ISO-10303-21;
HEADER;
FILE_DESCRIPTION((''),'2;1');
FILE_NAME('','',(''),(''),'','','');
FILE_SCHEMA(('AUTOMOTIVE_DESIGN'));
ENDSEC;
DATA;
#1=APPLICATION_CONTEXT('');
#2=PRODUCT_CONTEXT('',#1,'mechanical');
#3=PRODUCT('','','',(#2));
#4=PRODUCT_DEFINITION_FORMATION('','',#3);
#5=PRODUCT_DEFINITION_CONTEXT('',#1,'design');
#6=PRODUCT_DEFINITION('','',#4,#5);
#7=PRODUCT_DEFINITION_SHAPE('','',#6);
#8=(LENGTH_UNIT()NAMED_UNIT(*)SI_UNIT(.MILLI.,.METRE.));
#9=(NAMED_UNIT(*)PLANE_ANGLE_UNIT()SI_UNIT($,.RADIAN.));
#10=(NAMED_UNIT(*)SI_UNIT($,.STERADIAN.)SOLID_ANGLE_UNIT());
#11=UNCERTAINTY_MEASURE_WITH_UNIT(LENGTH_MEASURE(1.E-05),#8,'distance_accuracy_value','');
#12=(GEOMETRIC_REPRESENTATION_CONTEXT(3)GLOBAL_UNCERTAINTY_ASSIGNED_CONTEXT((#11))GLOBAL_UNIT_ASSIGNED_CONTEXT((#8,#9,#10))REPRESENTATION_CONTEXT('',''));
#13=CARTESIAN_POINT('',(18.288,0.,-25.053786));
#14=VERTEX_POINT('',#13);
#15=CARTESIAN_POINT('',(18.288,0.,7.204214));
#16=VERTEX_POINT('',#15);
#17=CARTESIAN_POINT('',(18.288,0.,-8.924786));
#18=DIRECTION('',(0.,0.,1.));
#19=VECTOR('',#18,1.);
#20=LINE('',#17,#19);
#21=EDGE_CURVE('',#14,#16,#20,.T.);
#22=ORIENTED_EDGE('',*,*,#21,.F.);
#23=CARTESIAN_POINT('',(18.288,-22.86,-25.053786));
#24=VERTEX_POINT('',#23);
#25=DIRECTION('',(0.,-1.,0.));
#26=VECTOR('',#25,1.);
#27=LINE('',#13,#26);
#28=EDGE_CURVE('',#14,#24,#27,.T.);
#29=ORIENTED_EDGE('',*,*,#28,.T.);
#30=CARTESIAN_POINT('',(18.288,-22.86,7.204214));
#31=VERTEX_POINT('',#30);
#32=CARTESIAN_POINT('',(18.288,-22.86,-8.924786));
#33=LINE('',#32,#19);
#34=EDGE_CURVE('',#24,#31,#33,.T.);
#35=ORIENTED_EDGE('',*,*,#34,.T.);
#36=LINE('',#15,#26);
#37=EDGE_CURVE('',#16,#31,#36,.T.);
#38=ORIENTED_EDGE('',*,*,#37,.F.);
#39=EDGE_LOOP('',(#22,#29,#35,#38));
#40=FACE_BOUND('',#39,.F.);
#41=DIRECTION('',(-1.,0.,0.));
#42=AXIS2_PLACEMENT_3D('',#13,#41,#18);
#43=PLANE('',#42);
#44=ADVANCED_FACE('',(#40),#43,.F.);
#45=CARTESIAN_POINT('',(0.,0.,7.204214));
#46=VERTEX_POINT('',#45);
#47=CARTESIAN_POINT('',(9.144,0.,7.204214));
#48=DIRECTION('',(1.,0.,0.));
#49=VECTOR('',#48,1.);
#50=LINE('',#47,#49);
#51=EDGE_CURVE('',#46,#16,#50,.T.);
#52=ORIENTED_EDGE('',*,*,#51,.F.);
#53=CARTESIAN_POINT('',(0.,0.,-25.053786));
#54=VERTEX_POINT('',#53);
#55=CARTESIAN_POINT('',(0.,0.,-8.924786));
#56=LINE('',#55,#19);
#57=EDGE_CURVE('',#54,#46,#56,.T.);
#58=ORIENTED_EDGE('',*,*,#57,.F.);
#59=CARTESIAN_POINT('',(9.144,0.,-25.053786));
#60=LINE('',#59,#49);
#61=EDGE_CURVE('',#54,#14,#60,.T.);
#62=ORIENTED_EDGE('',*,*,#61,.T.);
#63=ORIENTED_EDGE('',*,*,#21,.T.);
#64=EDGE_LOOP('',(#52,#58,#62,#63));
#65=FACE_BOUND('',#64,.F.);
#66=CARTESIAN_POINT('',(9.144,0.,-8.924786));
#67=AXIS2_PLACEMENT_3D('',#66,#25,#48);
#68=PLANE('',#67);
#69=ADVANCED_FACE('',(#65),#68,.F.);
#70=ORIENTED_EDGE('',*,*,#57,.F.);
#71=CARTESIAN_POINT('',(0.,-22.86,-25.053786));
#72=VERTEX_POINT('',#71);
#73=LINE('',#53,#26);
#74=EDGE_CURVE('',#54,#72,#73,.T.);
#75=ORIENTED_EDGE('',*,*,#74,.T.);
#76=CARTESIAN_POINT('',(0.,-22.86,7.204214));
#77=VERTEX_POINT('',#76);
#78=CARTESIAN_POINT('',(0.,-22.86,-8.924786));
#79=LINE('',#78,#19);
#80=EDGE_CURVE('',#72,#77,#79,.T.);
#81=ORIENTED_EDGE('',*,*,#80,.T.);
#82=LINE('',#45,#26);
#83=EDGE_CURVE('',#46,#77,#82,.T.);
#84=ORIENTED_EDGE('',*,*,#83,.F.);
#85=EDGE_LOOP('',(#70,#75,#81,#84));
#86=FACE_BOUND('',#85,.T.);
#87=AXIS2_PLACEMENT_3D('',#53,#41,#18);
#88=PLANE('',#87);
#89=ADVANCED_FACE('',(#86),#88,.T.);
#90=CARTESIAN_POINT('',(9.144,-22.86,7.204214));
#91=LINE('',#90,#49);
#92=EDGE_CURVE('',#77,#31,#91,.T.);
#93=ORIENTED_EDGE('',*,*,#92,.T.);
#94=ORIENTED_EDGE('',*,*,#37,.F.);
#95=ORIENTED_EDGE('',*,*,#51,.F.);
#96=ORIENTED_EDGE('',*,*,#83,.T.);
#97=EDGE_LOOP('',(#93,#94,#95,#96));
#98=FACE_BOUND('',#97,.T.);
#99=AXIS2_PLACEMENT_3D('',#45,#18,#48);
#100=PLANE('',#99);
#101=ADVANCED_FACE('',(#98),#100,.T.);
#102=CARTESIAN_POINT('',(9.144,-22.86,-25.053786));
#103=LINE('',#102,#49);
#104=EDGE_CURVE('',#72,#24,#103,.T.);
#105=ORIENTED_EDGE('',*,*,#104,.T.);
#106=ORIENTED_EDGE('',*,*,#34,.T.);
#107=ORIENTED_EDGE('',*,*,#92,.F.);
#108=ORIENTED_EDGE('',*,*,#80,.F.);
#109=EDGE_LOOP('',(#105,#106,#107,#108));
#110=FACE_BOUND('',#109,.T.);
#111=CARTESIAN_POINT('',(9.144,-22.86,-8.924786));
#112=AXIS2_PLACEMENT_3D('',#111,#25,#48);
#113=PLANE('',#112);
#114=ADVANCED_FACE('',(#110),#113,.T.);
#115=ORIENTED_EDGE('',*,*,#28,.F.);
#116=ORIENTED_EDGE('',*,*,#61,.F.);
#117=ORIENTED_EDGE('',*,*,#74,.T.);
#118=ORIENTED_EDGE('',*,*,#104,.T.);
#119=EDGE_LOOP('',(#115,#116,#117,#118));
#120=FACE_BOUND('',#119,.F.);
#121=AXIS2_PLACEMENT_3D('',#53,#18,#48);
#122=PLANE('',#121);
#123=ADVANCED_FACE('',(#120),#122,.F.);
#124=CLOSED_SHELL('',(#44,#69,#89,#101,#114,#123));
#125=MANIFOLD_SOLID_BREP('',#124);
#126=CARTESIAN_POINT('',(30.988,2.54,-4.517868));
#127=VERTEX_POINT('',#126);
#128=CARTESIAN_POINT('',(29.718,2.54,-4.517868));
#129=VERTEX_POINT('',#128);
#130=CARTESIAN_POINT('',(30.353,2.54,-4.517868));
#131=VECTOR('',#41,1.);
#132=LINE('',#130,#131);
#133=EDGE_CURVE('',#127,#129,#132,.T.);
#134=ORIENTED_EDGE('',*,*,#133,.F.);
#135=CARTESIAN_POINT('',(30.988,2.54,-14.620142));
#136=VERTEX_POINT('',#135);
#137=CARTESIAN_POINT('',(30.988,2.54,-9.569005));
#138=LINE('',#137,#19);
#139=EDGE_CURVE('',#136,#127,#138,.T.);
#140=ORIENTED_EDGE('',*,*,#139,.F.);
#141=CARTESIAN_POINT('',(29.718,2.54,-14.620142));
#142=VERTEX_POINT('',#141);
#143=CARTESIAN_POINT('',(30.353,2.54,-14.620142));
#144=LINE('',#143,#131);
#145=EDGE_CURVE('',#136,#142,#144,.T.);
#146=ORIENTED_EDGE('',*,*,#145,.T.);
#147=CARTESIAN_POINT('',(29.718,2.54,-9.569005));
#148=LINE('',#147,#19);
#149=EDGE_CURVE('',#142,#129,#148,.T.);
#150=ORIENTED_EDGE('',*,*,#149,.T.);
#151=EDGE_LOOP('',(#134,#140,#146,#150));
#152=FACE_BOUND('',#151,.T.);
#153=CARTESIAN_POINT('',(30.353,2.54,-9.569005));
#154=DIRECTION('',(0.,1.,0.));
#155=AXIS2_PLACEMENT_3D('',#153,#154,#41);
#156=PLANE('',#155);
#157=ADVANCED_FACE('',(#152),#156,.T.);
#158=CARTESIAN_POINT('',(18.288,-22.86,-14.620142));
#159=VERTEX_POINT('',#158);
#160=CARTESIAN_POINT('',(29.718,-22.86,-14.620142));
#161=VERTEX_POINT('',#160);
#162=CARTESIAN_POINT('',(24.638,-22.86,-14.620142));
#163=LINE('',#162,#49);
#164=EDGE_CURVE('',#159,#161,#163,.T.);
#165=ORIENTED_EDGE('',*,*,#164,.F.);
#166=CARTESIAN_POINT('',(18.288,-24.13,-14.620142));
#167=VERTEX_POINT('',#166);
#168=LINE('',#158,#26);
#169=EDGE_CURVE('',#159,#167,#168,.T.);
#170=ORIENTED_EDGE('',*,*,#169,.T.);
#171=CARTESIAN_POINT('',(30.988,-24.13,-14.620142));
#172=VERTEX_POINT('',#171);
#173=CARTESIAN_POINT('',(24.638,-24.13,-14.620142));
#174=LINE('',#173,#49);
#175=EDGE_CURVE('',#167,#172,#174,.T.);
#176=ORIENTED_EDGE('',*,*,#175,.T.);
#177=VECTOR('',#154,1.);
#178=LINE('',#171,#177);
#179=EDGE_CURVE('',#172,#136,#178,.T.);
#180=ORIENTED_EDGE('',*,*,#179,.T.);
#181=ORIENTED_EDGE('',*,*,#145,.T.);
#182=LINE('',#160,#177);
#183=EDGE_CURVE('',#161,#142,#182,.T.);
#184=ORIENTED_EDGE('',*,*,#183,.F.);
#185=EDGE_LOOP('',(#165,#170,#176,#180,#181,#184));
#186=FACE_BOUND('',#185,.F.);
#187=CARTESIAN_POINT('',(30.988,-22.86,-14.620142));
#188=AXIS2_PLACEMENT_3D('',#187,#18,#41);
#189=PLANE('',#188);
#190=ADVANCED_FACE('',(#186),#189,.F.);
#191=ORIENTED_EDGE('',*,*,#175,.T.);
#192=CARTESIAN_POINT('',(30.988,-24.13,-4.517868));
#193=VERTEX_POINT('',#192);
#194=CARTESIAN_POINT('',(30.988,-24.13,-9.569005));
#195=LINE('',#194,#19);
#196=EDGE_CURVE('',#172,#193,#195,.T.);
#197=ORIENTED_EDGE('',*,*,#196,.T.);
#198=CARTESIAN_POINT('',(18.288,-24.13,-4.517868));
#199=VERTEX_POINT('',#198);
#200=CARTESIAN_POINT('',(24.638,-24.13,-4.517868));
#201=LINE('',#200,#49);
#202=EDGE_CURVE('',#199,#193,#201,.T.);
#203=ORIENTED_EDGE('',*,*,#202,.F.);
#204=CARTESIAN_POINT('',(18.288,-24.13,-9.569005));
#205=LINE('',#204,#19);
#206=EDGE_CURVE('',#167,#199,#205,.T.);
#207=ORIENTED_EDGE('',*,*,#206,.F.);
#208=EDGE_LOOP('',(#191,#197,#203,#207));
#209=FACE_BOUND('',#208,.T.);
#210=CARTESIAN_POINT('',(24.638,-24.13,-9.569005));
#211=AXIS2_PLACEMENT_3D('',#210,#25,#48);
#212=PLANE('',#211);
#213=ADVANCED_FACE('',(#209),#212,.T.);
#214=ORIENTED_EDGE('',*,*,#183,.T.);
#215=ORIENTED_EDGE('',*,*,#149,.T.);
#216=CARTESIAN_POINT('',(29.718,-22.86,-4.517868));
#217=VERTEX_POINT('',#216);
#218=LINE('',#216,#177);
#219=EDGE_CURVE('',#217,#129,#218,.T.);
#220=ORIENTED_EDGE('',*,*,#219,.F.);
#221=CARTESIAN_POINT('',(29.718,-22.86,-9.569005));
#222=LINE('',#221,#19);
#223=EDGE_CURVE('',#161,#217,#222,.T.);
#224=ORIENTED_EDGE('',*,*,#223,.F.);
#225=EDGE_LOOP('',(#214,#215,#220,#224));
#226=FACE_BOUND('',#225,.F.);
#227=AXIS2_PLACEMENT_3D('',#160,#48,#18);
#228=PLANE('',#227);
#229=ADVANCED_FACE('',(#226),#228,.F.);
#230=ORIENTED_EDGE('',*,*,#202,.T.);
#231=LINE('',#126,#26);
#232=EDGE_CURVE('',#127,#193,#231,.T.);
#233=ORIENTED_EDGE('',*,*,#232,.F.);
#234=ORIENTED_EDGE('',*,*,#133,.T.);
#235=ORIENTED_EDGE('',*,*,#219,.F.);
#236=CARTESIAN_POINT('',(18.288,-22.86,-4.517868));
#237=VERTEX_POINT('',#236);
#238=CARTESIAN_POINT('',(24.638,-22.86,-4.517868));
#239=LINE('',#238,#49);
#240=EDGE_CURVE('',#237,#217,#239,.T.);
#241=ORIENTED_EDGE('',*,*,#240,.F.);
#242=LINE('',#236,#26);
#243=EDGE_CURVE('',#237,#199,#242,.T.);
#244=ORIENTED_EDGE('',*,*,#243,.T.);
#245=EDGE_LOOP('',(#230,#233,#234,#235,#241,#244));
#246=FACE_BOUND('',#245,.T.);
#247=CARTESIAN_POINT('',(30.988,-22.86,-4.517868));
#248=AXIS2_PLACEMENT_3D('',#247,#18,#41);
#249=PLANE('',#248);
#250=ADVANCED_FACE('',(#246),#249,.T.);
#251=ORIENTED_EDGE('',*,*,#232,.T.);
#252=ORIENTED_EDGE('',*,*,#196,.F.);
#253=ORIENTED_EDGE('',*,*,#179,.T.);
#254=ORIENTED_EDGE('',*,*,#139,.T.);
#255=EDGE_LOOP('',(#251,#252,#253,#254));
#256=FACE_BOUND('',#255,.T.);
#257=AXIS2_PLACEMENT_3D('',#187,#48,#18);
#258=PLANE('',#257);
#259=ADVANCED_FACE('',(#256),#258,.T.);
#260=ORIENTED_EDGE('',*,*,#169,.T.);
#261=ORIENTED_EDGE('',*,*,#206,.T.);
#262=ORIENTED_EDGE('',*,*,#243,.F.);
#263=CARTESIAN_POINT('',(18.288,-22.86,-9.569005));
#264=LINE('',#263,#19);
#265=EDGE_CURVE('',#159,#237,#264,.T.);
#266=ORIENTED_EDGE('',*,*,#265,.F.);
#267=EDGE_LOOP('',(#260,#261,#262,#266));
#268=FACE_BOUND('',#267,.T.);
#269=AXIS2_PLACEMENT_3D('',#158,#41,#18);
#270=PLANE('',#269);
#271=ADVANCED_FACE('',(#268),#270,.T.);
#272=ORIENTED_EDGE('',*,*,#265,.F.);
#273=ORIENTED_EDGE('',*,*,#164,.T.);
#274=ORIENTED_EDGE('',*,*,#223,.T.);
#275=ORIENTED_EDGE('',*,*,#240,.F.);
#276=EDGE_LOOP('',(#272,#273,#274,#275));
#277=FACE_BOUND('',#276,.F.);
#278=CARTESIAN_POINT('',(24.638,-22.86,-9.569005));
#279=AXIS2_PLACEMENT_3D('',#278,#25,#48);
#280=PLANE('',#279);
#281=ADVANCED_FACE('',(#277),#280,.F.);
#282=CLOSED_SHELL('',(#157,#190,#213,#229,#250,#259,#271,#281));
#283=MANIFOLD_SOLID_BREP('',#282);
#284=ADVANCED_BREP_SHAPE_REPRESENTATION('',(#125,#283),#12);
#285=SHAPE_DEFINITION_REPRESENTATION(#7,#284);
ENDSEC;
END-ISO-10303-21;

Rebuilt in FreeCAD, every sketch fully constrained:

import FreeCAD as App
import Part
import Sketcher
from FreeCAD import Vector
Q = App.Units.Quantity


def add_polygon(sketch, points):
    """Adds a closed chain of lines whose ends are joined by coincident constraints."""
    first, n = sketch.GeometryCount, len(points)
    for a, b in zip(points, points[1:] + points[:1]):
        sketch.addGeometry(Part.LineSegment(App.Vector(*a, 0), App.Vector(*b, 0)), False)
    for i in range(n):
        sketch.addConstraint(Sketcher.Constraint("Coincident", first + i, 2, first + (i + 1) % n, 1))

doc = App.newDocument("Part")
body = doc.addObject("PartDesign::Body", "Body")

sketch1 = body.newObject("Sketcher::SketchObject", "Sketch")
sketch1.AttachmentSupport = (doc.getObject("XZ_Plane"), [""])
sketch1.MapMode = "FlatFace"
add_polygon(sketch1, [(0, 7), (0, -25), (18, -25), (18, 7)])
sketch1.addConstraint([
    Sketcher.Constraint("Vertical", 0),
    Sketcher.Constraint("Horizontal", 1),
    Sketcher.Constraint("Vertical", 2),
    Sketcher.Constraint("Horizontal", 3),
    Sketcher.Constraint("PointOnObject", 0, 2, -2),
    Sketcher.Constraint("DistanceX", 1, 1, 1, 2, Q("0.72 in")),
    Sketcher.Constraint("DistanceY", 0, 2, 0, 1, Q("1.27 in")),
    Sketcher.Constraint("DistanceY", 0, 2, -1, 1, 25.053786),
])
pad1 = body.newObject("PartDesign::Pad", "Pad")
pad1.Profile = sketch1
pad1.Length = Q("0.9 in")
body2 = doc.addObject("PartDesign::Body", "Body001")

sketch2 = body2.newObject("Sketcher::SketchObject", "Sketch001")
sketch2.AttachmentSupport = (doc.getObject("XZ_Plane001"), [""])
sketch2.MapMode = "FlatFace"
sketch2.AttachmentOffset = App.Placement(Vector(0, 0, 0.9 * 25.4), App.Rotation())
add_polygon(sketch2, [(18, -5), (18, -15), (31, -15), (31, -5)])
sketch2.addConstraint([
    Sketcher.Constraint("Vertical", 0),
    Sketcher.Constraint("Horizontal", 1),
    Sketcher.Constraint("Vertical", 2),
    Sketcher.Constraint("Horizontal", 3),
    Sketcher.Constraint("DistanceX", 1, 1, 1, 2, Q("0.5 in")),
    Sketcher.Constraint("DistanceX", -1, 1, 0, 2, Q("0.72 in")),
    Sketcher.Constraint("DistanceY", 0, 2, 0, 1, 10.102273),
    Sketcher.Constraint("DistanceY", 0, 2, -1, 1, 14.620142),
])
pad2 = body2.newObject("PartDesign::Pad", "Pad001")
pad2.Profile = sketch2
pad2.Length = Q("0.05 in")

sketch3 = body2.newObject("Sketcher::SketchObject", "Sketch002")
sketch3.AttachmentSupport = (doc.getObject("XZ_Plane001"), [""])
sketch3.MapMode = "FlatFace"
sketch3.AttachmentOffset = App.Placement(Vector(0, 0, 0.9 * 25.4), App.Rotation())
add_polygon(sketch3, [(31, -4.5), (31, -14.6), (29.7, -14.6), (29.7, -4.5)])
sketch3.addConstraint([
    Sketcher.Constraint("Vertical", 0),
    Sketcher.Constraint("Horizontal", 1),
    Sketcher.Constraint("Vertical", 2),
    Sketcher.Constraint("Horizontal", 3),
    Sketcher.Constraint("DistanceX", 1, 2, 1, 1, Q("0.05 in")),
    Sketcher.Constraint("DistanceX", -1, 1, 0, 2, Q("1.22 in")),
    Sketcher.Constraint("DistanceY", 0, 2, 0, 1, 10.102273),
    Sketcher.Constraint("DistanceY", 0, 2, -1, 1, 14.620142),
])
pad3 = body2.newObject("PartDesign::Pad", "Pad002")
pad3.Profile = sketch3
pad3.Length = Q("1 in")
pad3.Reversed = True

doc.recompute()
